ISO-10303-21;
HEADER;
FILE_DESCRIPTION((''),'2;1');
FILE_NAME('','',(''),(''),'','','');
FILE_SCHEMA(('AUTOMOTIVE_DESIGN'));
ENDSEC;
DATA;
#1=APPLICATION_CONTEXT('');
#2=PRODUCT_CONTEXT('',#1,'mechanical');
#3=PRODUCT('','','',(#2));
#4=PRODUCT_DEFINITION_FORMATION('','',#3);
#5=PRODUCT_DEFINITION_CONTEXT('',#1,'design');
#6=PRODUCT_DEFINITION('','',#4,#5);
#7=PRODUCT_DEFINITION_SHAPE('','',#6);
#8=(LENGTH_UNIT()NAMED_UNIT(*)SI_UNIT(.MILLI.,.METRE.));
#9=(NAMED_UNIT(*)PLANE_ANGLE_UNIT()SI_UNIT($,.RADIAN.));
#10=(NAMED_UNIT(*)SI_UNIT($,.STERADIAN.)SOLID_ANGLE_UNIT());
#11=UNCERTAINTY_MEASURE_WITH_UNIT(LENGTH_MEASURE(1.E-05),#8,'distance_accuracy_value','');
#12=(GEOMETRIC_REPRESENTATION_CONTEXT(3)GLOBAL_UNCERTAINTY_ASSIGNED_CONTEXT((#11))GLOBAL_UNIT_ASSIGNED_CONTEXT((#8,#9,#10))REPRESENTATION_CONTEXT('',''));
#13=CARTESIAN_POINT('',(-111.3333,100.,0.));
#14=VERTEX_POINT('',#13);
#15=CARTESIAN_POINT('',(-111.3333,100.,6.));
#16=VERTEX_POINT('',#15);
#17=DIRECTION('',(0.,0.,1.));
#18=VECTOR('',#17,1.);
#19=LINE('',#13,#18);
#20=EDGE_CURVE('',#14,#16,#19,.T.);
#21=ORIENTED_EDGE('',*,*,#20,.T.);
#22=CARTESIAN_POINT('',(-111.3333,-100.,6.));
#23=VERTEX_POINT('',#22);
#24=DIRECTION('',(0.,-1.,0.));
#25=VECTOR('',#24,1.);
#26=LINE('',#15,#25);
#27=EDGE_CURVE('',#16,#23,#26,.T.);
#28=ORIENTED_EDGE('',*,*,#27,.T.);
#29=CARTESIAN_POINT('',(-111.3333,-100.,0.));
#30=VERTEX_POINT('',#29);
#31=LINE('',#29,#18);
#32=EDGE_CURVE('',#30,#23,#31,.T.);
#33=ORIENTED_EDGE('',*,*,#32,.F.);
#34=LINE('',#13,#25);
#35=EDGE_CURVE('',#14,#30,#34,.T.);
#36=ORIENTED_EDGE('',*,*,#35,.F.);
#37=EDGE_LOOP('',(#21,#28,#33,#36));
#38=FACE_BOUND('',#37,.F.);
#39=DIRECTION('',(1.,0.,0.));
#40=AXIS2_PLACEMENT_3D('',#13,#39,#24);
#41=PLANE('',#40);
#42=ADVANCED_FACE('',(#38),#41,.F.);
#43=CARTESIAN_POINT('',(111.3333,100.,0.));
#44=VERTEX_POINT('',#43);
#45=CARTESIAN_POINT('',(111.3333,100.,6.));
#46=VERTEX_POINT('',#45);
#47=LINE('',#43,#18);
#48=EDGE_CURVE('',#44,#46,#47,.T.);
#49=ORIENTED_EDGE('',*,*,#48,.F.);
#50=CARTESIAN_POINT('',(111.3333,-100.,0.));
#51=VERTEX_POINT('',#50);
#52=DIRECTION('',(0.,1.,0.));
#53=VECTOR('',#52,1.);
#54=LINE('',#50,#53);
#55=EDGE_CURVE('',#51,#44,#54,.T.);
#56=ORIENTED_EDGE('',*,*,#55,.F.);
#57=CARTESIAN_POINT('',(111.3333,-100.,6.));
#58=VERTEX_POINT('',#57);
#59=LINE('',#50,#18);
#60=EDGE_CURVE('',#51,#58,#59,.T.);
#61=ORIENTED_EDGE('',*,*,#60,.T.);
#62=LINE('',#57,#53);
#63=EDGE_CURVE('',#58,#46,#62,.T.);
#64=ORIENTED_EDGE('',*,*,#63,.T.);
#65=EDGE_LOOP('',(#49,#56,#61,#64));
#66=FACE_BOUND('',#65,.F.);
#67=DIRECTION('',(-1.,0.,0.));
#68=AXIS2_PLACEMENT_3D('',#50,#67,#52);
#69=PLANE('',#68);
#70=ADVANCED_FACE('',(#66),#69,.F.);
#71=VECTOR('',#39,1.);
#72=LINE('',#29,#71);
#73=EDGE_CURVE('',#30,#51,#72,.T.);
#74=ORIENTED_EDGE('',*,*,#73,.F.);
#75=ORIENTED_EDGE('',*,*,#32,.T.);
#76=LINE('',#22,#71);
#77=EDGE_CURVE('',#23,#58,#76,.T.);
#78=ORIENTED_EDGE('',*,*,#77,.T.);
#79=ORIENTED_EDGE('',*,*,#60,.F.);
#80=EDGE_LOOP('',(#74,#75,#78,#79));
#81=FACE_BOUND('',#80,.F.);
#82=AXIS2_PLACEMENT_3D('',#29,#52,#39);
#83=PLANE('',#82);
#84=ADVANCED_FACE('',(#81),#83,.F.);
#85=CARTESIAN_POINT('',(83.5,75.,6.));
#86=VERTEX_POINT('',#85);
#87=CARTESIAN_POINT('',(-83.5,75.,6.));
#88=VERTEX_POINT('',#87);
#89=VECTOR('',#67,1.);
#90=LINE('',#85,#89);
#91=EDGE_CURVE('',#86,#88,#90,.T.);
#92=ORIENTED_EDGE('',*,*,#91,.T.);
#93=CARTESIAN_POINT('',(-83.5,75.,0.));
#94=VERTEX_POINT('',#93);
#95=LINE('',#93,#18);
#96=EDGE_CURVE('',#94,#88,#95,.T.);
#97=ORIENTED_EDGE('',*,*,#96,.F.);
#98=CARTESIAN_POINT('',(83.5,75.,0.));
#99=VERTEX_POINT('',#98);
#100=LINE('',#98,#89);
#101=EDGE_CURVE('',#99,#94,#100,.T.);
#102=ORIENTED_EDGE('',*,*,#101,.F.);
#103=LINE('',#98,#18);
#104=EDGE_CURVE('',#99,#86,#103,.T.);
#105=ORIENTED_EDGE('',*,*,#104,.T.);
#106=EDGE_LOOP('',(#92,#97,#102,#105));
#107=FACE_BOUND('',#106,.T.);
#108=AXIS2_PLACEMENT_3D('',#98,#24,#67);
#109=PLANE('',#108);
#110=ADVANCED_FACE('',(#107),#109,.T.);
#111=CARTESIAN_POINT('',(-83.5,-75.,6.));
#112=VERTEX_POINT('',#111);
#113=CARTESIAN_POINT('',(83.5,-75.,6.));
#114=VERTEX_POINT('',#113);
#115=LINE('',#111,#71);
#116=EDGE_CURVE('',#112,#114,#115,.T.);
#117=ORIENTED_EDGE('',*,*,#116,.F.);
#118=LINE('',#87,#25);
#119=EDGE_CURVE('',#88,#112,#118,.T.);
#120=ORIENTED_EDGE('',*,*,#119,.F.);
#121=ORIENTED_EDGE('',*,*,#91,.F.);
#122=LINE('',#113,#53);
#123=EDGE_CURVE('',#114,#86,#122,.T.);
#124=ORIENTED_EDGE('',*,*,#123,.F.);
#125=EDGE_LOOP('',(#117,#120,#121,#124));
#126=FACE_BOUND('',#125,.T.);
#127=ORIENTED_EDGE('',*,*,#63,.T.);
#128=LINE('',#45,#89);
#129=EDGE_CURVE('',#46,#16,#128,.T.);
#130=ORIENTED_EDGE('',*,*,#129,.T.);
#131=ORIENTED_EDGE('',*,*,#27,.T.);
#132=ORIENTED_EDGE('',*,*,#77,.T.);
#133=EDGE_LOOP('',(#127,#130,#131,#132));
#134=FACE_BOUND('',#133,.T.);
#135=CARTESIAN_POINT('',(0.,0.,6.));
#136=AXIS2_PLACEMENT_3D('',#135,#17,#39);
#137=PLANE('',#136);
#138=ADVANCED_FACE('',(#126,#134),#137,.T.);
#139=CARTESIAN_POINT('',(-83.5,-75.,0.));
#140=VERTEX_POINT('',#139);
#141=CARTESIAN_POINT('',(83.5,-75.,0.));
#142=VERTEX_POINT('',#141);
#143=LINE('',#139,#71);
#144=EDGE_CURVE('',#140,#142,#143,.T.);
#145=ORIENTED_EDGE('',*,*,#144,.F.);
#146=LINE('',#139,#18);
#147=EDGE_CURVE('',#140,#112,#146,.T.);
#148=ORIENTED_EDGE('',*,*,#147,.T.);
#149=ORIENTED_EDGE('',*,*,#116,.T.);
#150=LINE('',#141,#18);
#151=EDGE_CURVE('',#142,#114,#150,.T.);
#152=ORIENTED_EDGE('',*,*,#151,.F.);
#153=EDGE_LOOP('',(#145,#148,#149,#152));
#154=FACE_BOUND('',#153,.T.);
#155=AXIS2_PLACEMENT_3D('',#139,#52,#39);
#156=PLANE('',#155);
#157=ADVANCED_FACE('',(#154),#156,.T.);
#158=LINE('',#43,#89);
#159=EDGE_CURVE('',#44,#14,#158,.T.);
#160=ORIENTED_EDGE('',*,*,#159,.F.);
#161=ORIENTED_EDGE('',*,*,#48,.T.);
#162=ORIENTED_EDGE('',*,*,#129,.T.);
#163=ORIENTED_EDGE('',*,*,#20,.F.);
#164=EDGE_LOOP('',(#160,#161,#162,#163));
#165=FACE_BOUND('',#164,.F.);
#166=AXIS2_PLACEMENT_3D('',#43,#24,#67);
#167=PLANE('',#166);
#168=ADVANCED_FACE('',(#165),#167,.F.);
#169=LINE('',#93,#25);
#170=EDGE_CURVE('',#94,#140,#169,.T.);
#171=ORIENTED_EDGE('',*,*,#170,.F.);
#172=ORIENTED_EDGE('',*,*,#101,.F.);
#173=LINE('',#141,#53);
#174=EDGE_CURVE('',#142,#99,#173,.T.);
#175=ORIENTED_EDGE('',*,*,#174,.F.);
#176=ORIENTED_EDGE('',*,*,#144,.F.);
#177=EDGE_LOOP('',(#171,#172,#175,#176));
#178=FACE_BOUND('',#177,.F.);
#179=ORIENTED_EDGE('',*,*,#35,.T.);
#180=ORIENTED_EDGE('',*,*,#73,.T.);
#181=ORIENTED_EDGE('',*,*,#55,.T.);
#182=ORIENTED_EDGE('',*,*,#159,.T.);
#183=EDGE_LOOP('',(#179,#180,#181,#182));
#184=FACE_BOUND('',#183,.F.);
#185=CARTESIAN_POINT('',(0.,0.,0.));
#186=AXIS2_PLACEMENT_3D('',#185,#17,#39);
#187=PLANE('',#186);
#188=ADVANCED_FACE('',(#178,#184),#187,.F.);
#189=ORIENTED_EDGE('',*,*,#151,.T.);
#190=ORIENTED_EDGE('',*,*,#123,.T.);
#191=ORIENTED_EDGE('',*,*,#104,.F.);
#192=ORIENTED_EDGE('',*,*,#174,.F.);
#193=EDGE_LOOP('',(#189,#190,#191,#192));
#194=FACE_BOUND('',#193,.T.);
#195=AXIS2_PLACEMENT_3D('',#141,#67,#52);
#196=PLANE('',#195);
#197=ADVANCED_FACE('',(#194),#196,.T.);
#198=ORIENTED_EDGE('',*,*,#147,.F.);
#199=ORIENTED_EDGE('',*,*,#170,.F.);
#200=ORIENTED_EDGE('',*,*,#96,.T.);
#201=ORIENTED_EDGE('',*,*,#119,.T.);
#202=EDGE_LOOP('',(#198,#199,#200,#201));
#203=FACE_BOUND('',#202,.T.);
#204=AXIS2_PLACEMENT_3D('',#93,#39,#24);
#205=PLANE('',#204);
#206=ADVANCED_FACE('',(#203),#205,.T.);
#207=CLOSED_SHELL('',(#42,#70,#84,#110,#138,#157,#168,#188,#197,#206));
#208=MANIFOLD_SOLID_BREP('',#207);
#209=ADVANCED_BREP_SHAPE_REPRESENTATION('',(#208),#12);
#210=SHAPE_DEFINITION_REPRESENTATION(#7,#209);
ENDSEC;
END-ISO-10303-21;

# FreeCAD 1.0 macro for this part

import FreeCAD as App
import Part
import Sketcher

V = App.Vector

doc = App.newDocument("Part")
body = doc.addObject("PartDesign::Body", "Body")

sketch1 = doc.addObject("Sketcher::SketchObject", "Sketch")
body.addObject(sketch1)
sketch1.AttachmentSupport = (doc.XY_Plane, [""])
sketch1.MapMode = "FlatFace"
sketch1.addGeometry(Part.LineSegment(V(-111.3333, 100, 0), V(-111.3333, -100, 0)), False)
sketch1.addGeometry(Part.LineSegment(V(-111.3333, -100, 0), V(111.3333, -100, 0)), False)
sketch1.addGeometry(Part.LineSegment(V(111.3333, -100, 0), V(111.3333, 100, 0)), False)
sketch1.addGeometry(Part.LineSegment(V(111.3333, 100, 0), V(-111.3333, 100, 0)), False)
sketch1.addGeometry(Part.LineSegment(V(83.5, -75, 0), V(-83.5, -75, 0)), False)
sketch1.addGeometry(Part.LineSegment(V(-83.5, -75, 0), V(-83.5, 75, 0)), False)
sketch1.addGeometry(Part.LineSegment(V(-83.5, 75, 0), V(83.5, 75, 0)), False)
sketch1.addGeometry(Part.LineSegment(V(83.5, 75, 0), V(83.5, -75, 0)), False)
sketch1.addConstraint(Sketcher.Constraint("Coincident", 0, 2, 1, 1))
sketch1.addConstraint(Sketcher.Constraint("Coincident", 1, 2, 2, 1))
sketch1.addConstraint(Sketcher.Constraint("Coincident", 2, 2, 3, 1))
sketch1.addConstraint(Sketcher.Constraint("Coincident", 3, 2, 0, 1))
sketch1.addConstraint(Sketcher.Constraint("Coincident", 4, 2, 5, 1))
sketch1.addConstraint(Sketcher.Constraint("Coincident", 5, 2, 6, 1))
sketch1.addConstraint(Sketcher.Constraint("Coincident", 6, 2, 7, 1))
sketch1.addConstraint(Sketcher.Constraint("Coincident", 7, 2, 4, 1))
sketch1.addConstraint(Sketcher.Constraint("Vertical", 0))
sketch1.addConstraint(Sketcher.Constraint("Horizontal", 1))
sketch1.addConstraint(Sketcher.Constraint("Vertical", 2))
sketch1.addConstraint(Sketcher.Constraint("Horizontal", 3))
sketch1.addConstraint(Sketcher.Constraint("Horizontal", 4))
sketch1.addConstraint(Sketcher.Constraint("Vertical", 5))
sketch1.addConstraint(Sketcher.Constraint("Horizontal", 6))
sketch1.addConstraint(Sketcher.Constraint("Vertical", 7))
sketch1.addConstraint(Sketcher.Constraint("Symmetric", 0, 2, 2, 2, -1, 1))
sketch1.addConstraint(Sketcher.Constraint("Symmetric", 4, 2, 6, 2, -1, 1))
sketch1.addConstraint(Sketcher.Constraint("DistanceX", 4, 2, 4, 1, 167.0))
sketch1.addConstraint(Sketcher.Constraint("DistanceY", 0, 2, 0, 1, 200.0))
sketch1.addConstraint(Sketcher.Constraint("DistanceY", 5, 1, 5, 2, 150.0))
sketch1.addConstraint(Sketcher.Constraint("DistanceX", 1, 1, 1, 2, 222.6666))
pad1 = doc.addObject("PartDesign::Pad", "Pad")
body.addObject(pad1)
pad1.Profile = sketch1
pad1.Length = 6

doc.recompute()
